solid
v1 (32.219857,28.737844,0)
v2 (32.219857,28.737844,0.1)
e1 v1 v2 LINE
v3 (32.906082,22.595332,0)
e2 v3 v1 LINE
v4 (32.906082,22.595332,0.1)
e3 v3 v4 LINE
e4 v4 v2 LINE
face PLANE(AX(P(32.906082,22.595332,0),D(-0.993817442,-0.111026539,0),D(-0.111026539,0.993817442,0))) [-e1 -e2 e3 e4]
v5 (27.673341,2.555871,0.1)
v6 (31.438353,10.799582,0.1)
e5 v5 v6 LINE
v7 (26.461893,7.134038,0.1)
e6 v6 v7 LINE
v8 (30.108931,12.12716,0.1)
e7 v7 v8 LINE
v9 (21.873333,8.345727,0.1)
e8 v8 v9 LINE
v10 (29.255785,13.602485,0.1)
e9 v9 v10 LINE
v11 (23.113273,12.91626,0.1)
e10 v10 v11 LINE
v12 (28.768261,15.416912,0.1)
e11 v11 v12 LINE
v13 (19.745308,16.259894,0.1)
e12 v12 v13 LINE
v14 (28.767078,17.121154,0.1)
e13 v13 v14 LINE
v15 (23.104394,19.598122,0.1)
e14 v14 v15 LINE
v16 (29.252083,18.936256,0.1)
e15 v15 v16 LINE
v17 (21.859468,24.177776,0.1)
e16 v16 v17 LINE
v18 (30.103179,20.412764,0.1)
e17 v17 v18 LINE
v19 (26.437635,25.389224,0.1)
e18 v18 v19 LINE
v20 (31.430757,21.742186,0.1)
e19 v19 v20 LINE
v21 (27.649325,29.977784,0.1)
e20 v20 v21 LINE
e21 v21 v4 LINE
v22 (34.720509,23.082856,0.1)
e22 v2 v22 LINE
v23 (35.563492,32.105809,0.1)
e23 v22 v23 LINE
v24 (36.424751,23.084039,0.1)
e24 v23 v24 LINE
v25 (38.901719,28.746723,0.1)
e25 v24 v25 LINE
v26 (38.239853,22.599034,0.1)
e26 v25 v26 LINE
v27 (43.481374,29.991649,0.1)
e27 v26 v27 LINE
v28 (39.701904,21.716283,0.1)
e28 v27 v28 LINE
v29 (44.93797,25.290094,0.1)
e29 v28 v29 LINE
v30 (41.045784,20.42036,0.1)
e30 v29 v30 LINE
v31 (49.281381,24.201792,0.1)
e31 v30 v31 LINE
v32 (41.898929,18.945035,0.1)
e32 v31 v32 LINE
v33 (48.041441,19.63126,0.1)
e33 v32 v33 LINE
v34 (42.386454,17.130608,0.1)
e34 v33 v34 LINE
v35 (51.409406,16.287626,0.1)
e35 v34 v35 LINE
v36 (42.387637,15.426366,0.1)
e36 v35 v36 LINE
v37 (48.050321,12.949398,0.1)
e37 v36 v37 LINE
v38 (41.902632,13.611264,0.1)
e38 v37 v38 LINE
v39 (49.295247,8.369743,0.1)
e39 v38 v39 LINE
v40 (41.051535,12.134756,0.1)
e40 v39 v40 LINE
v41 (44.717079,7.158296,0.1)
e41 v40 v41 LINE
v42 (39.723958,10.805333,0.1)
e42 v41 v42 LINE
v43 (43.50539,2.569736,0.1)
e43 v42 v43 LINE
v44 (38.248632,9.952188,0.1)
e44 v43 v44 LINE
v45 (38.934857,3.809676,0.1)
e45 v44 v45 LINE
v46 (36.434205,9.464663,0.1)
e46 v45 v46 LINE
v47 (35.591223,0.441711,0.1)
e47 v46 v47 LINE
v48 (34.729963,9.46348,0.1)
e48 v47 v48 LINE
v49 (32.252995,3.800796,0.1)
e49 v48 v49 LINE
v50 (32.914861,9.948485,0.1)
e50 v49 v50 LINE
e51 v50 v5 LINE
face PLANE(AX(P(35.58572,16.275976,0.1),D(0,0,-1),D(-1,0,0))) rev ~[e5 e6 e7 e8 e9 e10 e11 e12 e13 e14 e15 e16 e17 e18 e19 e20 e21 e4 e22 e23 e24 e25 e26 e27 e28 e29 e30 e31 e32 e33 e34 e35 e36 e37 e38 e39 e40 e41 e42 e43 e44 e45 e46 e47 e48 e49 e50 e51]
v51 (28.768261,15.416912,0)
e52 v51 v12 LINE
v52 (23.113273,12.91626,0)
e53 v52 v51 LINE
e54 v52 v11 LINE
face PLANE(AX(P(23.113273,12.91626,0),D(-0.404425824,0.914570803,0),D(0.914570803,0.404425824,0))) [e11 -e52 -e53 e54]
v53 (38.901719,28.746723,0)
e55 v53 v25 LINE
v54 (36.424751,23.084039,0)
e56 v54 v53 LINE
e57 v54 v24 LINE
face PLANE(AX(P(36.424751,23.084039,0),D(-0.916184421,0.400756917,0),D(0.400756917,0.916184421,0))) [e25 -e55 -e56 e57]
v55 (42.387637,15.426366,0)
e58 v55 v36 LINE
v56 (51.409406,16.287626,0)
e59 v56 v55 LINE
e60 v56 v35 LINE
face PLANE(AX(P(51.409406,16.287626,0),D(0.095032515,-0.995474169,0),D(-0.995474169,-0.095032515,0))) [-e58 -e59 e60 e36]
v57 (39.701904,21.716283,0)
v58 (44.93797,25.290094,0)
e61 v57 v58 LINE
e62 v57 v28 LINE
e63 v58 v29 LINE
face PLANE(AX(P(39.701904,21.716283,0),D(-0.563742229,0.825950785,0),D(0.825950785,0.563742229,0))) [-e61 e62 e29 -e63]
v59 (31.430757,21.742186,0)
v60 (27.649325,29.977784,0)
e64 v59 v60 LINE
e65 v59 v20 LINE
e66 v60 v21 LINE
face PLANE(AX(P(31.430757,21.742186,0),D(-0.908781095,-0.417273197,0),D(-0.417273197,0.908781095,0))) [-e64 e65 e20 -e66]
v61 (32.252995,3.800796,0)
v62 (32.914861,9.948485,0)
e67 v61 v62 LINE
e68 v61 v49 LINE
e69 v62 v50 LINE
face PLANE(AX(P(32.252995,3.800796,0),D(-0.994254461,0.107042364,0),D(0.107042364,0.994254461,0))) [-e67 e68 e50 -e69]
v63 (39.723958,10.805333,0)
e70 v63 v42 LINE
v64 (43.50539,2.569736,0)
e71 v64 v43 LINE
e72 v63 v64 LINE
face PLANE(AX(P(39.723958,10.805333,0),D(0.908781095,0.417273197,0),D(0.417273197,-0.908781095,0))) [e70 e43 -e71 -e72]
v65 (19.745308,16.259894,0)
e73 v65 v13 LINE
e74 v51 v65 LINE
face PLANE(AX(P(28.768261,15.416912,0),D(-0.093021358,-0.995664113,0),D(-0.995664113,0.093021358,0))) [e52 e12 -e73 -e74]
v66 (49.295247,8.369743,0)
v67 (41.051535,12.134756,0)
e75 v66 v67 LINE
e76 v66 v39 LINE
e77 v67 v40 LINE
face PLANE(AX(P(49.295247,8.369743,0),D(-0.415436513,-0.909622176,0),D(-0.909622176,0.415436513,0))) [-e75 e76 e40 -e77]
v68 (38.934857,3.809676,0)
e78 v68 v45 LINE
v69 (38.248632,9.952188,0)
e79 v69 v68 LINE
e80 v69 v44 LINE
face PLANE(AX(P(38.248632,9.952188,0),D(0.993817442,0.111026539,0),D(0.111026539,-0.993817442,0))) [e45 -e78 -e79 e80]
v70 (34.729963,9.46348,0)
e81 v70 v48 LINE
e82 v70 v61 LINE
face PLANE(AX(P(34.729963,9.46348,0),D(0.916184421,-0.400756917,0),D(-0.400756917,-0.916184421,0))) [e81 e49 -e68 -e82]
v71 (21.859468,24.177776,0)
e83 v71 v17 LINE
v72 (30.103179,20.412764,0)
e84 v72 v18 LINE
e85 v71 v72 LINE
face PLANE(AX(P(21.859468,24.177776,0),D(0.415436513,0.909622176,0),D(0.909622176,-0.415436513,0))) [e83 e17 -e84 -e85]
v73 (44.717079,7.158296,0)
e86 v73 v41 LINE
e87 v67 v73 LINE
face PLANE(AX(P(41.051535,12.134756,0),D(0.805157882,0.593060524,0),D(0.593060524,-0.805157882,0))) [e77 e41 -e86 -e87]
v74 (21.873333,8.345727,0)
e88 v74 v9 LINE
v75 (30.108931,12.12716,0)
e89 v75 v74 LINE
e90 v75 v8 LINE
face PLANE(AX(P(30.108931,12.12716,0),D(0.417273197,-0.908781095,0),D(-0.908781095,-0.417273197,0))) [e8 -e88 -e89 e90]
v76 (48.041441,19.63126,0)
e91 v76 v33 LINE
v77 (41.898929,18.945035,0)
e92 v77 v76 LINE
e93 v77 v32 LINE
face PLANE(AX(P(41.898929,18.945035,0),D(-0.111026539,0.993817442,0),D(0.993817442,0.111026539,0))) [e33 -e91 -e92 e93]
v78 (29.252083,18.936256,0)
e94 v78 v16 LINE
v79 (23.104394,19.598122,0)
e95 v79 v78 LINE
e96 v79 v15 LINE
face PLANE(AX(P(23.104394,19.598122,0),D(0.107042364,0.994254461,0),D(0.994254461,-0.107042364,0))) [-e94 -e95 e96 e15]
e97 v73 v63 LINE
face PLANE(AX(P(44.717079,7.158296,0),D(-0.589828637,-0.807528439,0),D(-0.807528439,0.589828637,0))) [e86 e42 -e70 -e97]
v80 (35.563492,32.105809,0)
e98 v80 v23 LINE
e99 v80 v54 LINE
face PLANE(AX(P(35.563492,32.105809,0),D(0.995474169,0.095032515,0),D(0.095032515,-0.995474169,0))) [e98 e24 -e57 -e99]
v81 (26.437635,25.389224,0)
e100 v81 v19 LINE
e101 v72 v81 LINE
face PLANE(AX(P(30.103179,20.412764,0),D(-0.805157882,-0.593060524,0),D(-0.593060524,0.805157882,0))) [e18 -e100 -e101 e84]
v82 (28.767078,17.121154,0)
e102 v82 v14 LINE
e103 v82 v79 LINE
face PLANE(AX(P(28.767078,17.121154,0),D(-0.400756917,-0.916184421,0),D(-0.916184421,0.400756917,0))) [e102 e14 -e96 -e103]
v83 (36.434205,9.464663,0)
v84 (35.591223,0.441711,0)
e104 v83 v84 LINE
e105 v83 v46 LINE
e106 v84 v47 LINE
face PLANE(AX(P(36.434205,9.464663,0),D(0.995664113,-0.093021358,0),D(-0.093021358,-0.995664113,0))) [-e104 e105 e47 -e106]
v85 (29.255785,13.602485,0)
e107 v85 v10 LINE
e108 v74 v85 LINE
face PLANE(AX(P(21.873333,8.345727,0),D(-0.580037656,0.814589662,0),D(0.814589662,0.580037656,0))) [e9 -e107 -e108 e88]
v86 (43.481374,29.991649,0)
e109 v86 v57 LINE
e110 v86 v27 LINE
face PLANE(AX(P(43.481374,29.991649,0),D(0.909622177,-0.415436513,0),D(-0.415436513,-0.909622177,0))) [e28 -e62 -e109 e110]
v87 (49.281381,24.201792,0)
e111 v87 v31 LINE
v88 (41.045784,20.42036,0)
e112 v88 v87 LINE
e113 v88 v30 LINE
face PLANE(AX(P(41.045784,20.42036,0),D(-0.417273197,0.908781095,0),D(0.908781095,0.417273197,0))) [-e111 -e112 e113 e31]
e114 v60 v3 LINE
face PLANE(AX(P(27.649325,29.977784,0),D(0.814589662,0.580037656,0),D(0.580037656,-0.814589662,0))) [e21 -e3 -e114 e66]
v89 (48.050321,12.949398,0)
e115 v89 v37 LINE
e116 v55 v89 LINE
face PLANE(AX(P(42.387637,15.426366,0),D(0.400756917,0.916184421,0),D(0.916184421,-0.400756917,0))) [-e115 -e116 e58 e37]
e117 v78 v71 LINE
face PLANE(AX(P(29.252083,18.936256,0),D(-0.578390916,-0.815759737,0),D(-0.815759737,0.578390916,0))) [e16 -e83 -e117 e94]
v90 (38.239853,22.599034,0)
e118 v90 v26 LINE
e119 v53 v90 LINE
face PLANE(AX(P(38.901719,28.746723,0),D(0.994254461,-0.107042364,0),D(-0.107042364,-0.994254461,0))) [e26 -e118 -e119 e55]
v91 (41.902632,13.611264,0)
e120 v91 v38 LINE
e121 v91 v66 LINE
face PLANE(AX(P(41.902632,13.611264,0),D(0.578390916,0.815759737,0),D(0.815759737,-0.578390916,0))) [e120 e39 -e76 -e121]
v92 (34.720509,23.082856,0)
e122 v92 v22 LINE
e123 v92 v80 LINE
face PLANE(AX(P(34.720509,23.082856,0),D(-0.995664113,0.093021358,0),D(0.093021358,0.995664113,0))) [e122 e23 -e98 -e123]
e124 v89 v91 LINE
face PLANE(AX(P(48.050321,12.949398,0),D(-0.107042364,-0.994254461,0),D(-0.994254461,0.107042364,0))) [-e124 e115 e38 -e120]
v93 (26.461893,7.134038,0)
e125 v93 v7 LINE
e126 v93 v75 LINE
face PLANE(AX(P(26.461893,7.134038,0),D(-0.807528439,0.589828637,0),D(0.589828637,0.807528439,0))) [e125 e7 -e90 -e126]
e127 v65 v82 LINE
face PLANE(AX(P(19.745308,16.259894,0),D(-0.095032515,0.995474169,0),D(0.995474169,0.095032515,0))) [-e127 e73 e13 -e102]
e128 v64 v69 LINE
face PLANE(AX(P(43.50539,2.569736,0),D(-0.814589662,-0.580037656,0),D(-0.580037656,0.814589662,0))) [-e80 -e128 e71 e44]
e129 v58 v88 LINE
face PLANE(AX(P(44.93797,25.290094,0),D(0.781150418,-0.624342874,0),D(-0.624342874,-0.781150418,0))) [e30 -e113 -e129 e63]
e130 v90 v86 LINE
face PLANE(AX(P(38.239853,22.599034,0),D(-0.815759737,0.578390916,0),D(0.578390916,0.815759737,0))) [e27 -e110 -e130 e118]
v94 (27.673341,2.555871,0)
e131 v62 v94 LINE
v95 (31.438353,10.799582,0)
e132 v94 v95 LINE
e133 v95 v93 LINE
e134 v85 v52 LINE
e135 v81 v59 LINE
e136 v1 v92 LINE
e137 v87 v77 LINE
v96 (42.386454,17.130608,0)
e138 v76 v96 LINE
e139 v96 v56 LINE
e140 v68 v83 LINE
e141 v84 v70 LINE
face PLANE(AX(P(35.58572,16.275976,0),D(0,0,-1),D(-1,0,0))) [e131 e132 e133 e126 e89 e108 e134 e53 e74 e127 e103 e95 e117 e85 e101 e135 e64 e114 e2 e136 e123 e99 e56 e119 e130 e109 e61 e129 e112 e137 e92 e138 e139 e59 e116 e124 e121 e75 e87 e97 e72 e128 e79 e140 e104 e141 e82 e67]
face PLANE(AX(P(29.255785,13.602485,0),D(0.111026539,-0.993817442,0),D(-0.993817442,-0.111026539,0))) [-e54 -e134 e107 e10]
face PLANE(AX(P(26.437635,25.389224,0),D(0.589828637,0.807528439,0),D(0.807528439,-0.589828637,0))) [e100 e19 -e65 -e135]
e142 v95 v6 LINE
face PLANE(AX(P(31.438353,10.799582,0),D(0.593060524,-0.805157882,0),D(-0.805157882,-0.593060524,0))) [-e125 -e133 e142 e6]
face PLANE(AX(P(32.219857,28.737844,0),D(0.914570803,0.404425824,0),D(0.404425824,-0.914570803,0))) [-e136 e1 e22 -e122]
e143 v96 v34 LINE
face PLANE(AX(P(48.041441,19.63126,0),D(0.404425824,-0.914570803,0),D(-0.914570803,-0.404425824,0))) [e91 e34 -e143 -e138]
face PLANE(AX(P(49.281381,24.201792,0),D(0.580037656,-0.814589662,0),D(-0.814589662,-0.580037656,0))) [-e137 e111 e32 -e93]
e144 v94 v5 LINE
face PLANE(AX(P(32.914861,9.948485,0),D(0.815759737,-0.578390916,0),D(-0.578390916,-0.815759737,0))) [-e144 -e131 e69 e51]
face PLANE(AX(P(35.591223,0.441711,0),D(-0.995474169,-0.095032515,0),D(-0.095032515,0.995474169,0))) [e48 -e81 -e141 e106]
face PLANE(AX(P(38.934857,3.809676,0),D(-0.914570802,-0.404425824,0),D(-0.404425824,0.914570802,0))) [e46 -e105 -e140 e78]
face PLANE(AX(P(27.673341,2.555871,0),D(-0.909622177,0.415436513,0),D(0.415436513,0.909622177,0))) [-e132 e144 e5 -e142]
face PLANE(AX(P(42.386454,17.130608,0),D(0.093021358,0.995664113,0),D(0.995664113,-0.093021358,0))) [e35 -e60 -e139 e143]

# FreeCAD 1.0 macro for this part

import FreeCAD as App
import Part
import Sketcher
from FreeCAD import Vector
Q = App.Units.Quantity


def add_polygon(sketch, points):
    """Adds a closed chain of lines whose ends are joined by coincident constraints."""
    first, n = sketch.GeometryCount, len(points)
    for a, b in zip(points, points[1:] + points[:1]):
        sketch.addGeometry(Part.LineSegment(App.Vector(*a, 0), App.Vector(*b, 0)), False)
    for i in range(n):
        sketch.addConstraint(Sketcher.Constraint("Coincident", first + i, 2, first + (i + 1) % n, 1))

doc = App.newDocument("Part")
body = doc.addObject("PartDesign::Body", "Body")

# Sketch on XY plane
sketch1 = body.newObject("Sketcher::SketchObject", "Sketch")
sketch1.AttachmentSupport = (doc.getObject("XY_Plane"), [""])
sketch1.MapMode = "FlatFace"
add_polygon(sketch1, [(36.434205, 9.464663), (38.934857, 3.809676), (38.248632, 9.952188), (43.50539, 2.569736), (39.723958, 10.805333), (44.717079, 7.158296), (41.051535, 12.134756), (49.295247, 8.369743), (41.902632, 13.611264), (48.050321, 12.949398), (42.387637, 15.426366), (51.409406, 16.287626), (42.386454, 17.130608), (48.041441, 19.63126), (41.898929, 18.945035), (49.281381, 24.201792), (41.045784, 20.42036), (44.93797, 25.290094), (39.701904, 21.716283), (43.481374, 29.991649), (38.239853, 22.599034), (38.901719, 28.746723), (36.424751, 23.084039), (35.563492, 32.105809), (34.720509, 23.082856), (32.219857, 28.737844), (32.906082, 22.595332), (27.649325, 29.977784), (31.430757, 21.742186), (26.437635, 25.389224), (30.103179, 20.412764), (21.859468, 24.177776), (29.252083, 18.936256), (23.104394, 19.598122), (28.767078, 17.121154), (19.745308, 16.259894), (28.768261, 15.416912), (23.113273, 12.91626), (29.255785, 13.602485), (21.873333, 8.345727), (30.108931, 12.12716), (26.461893, 7.134038), (31.438353, 10.799582), (27.673341, 2.555871), (32.914861, 9.948485), (32.252995, 3.800796), (34.729963, 9.46348), (35.591223, 0.441711)])  # lines 0-47
sketch1.addConstraint([
    Sketcher.Constraint("Perpendicular", 0, 12),
    Sketcher.Constraint("Perpendicular", 1, 13),
    Sketcher.Constraint("Perpendicular", 2, 14),
    Sketcher.Constraint("Perpendicular", 3, 15),
    Sketcher.Constraint("Perpendicular", 6, 18),
    Sketcher.Constraint("Perpendicular", 7, 19),
    Sketcher.Constraint("Perpendicular", 8, 20),
    Sketcher.Constraint("Perpendicular", 9, 21),
    Sketcher.Constraint("Perpendicular", 10, 22),
    Sketcher.Constraint("Perpendicular", 11, 23),
    Sketcher.Constraint("Perpendicular", 12, 24),
    Sketcher.Constraint("Perpendicular", 13, 25),
    Sketcher.Constraint("Perpendicular", 14, 26),
    Sketcher.Constraint("Perpendicular", 15, 27),
    Sketcher.Constraint("Parallel", 4, 28),
    Sketcher.Constraint("Parallel", 5, 29),
    Sketcher.Constraint("Perpendicular", 18, 30),
    Sketcher.Constraint("Perpendicular", 19, 31),
    Sketcher.Constraint("Perpendicular", 20, 32),
    Sketcher.Constraint("Perpendicular", 21, 33),
    Sketcher.Constraint("Perpendicular", 22, 34),
    Sketcher.Constraint("Perpendicular", 23, 35),
    Sketcher.Constraint("Perpendicular", 24, 36),
    Sketcher.Constraint("Perpendicular", 25, 37),
    Sketcher.Constraint("Perpendicular", 26, 38),
    Sketcher.Constraint("Perpendicular", 27, 39),
    Sketcher.Constraint("Perpendicular", 28, 40),
    Sketcher.Constraint("Perpendicular", 29, 41),
    Sketcher.Constraint("Perpendicular", 30, 42),
    Sketcher.Constraint("Perpendicular", 31, 43),
    Sketcher.Constraint("Perpendicular", 32, 44),
    Sketcher.Constraint("Perpendicular", 33, 45),
    Sketcher.Constraint("Perpendicular", 34, 46),
    Sketcher.Constraint("Perpendicular", 35, 47),
    Sketcher.Constraint("Equal", 0, 4),
    Sketcher.Constraint("Equal", 1, 5),
    Sketcher.Constraint("Equal", 2, 6),
    Sketcher.Constraint("Equal", 3, 7),
    Sketcher.Constraint("Equal", 4, 8),
    Sketcher.Constraint("Equal", 5, 9),
    Sketcher.Constraint("Equal", 6, 10),
    Sketcher.Constraint("Equal", 7, 11),
    Sketcher.Constraint("Equal", 8, 12),
    Sketcher.Constraint("Equal", 9, 13),
    Sketcher.Constraint("Equal", 10, 14),
    Sketcher.Constraint("Equal", 11, 15),
    Sketcher.Constraint("Equal", 15, 19),
    Sketcher.Constraint("Equal", 12, 20),
    Sketcher.Constraint("Equal", 13, 21),
    Sketcher.Constraint("Equal", 14, 22),
    Sketcher.Constraint("Equal", 19, 23),
    Sketcher.Constraint("Equal", 20, 24),
    Sketcher.Constraint("Equal", 21, 25),
    Sketcher.Constraint("Equal", 22, 26),
    Sketcher.Constraint("Equal", 23, 27),
    Sketcher.Constraint("Equal", 24, 28),
    Sketcher.Constraint("Equal", 25, 29),
    Sketcher.Constraint("Equal", 26, 30),
    Sketcher.Constraint("Equal", 27, 31),
    Sketcher.Constraint("Equal", 28, 32),
    Sketcher.Constraint("Equal", 29, 33),
    Sketcher.Constraint("Equal", 30, 34),
    Sketcher.Constraint("Equal", 31, 35),
    Sketcher.Constraint("Equal", 32, 36),
    Sketcher.Constraint("Equal", 33, 37),
    Sketcher.Constraint("Equal", 34, 38),
    Sketcher.Constraint("Equal", 35, 39),
    Sketcher.Constraint("Equal", 36, 40),
    Sketcher.Constraint("Equal", 37, 41),
    Sketcher.Constraint("Equal", 38, 42),
    Sketcher.Constraint("Equal", 39, 43),
    Sketcher.Constraint("Equal", 40, 44),
    Sketcher.Constraint("Equal", 41, 45),
    Sketcher.Constraint("Equal", 42, 46),
    Sketcher.Constraint("Equal", 43, 47),
    Sketcher.Constraint("DistanceX", 1, 2, 7, 2, Q("3.653999 mm")),
    Sketcher.Constraint("DistanceX", 0, 2, 3, 2, Q("0.789101 mm")),
    Sketcher.Constraint("DistanceY", 4, 2, 8, 2, Q("5.791102 mm")),
    Sketcher.Constraint("DistanceX", 5, 2, 9, 2, Q("1.336101 mm")),
    Sketcher.Constraint("DistanceY", 14, 2, 16, 2, Q("1.088301 mm")),
    Sketcher.Constraint("DistanceX", 19, 2, 11, 2, Q("4.1466 mm")),
    Sketcher.Constraint("Distance", 17, Q("6.339441 mm")),
    Sketcher.Constraint("DistanceY", -1, 1, 1, 2, Q("9.952188 mm")),
    Sketcher.Constraint("DistanceX", -1, 1, 2, 2, Q("43.50539 mm")),
    Sketcher.Constraint("DistanceX", -1, 1, 4, 2, Q("44.717079 mm")),
    Sketcher.Constraint("DistanceX", -1, 1, 7, 2, Q("41.902632 mm")),
    Sketcher.Constraint("DistanceX", -1, 1, 8, 2, Q("48.050321 mm")),
    Sketcher.Constraint("DistanceX", -1, 1, 12, 2, Q("48.041441 mm")),
    Sketcher.Constraint("DistanceY", -1, 1, 12, 2, Q("19.63126 mm")),
    Sketcher.Constraint("DistanceX", -1, 1, 13, 2, Q("41.898929 mm")),
    Sketcher.Constraint("DistanceX", -1, 1, 14, 2, Q("49.281381 mm")),
    Sketcher.Constraint("DistanceX", -1, 1, 16, 2, Q("44.93797 mm")),
    Sketcher.Constraint("DistanceY", -1, 1, 18, 2, Q("29.991649 mm")),
    Sketcher.Constraint("DistanceX", -1, 1, 20, 2, Q("38.901719 mm")),
    Sketcher.Constraint("DistanceX", -1, 1, 21, 2, Q("36.424751 mm")),
    Sketcher.Constraint("DistanceY", -1, 1, 21, 2, Q("23.084039 mm")),
])
pad1 = body.newObject("PartDesign::Pad", "Pad")
pad1.Profile = sketch1
pad1.Length = 0.1

doc.recompute()
